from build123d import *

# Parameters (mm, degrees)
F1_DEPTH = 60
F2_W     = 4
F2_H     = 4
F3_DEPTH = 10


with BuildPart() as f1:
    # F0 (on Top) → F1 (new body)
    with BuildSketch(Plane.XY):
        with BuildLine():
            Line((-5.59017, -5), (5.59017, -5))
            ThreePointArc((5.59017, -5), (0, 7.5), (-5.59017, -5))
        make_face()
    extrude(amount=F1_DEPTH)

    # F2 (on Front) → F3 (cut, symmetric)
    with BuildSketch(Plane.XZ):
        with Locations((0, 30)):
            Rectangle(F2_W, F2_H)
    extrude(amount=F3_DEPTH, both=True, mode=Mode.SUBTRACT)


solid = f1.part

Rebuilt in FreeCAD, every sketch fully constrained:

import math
import FreeCAD as App
import Part
import Sketcher
Q = App.Units.Quantity

doc = App.newDocument("Part")
params = doc.addObject("Spreadsheet::Sheet", "Params")
for row, (alias, value) in enumerate([
    ("sketch1_radius", "7.5 mm"),
    ("pad1_length", "60 mm"),
    ("sketch2_width", "4 mm"),
    ("pocket1_length", "20 mm"),
], start=1):
    params.set(f"A{row}", alias)
    params.set(f"B{row}", "=" + value)
    params.setAlias(f"B{row}", alias)

body = doc.addObject("PartDesign::Body", "Body")

sketch1 = body.newObject("Sketcher::SketchObject", "Sketch")
sketch1.AttachmentSupport = (doc.getObject("XY_Plane"), [""])
sketch1.MapMode = "FlatFace"
sketch1.addGeometry([
    Part.LineSegment(App.Vector(-6, -5, 0), App.Vector(6, -5, 0)),
    Part.ArcOfCircle(Part.Circle(App.Vector(0, 0, 0), App.Vector(0, 0, 1), 8), math.radians(-42), math.radians(222)),
], False)
sketch1.addConstraint([
    Sketcher.Constraint("Coincident", 0, 1, 1, 2),
    Sketcher.Constraint("Coincident", 1, 1, 0, 2),
    Sketcher.Constraint("Horizontal", 0),
    Sketcher.Constraint("Coincident", 1, 3, -1, 1),
    Sketcher.Constraint("Radius", 1, Q("7.5 mm")),
    Sketcher.Constraint("DistanceY", 0, 1, -1, 1, Q("5 mm")),
])
sketch1.setExpression("Constraints[4]", "Params.sketch1_radius")
pad1 = body.newObject("PartDesign::Pad", "Pad")
pad1.Profile = sketch1
pad1.setExpression("Length", "Params.pad1_length")

sketch2 = body.newObject("Sketcher::SketchObject", "Sketch001")
sketch2.AttachmentSupport = (doc.getObject("XZ_Plane"), [""])
sketch2.MapMode = "FlatFace"
sketch2.addGeometry([
    Part.LineSegment(App.Vector(-2, 32, 0), App.Vector(-2, 28, 0)),
    Part.LineSegment(App.Vector(-2, 28, 0), App.Vector(2, 28, 0)),
    Part.LineSegment(App.Vector(2, 28, 0), App.Vector(2, 32, 0)),
    Part.LineSegment(App.Vector(2, 32, 0), App.Vector(-2, 32, 0)),
], False)
sketch2.addConstraint([
    Sketcher.Constraint("Coincident", 0, 2, 1, 1),
    Sketcher.Constraint("Coincident", 1, 2, 2, 1),
    Sketcher.Constraint("Coincident", 2, 2, 3, 1),
    Sketcher.Constraint("Coincident", 3, 2, 0, 1),
    Sketcher.Constraint("Vertical", 0),
    Sketcher.Constraint("Horizontal", 1),
    Sketcher.Constraint("Vertical", 2),
    Sketcher.Constraint("Horizontal", 3),
    Sketcher.Constraint("Equal", 3, 0),
    Sketcher.Constraint("DistanceX", 1, 1, 1, 2, Q("4 mm")),
    Sketcher.Constraint("DistanceX", 0, 2, -1, 1, Q("2 mm")),
    Sketcher.Constraint("DistanceY", -1, 1, 0, 2, Q("28 mm")),
])
sketch2.setExpression("Constraints[9]", "Params.sketch2_width")
pocket1 = body.newObject("PartDesign::Pocket", "Pocket")
pocket1.Profile = sketch2
pocket1.setExpression("Length", "Params.pocket1_length")
pocket1.Midplane = True

doc.recompute()
